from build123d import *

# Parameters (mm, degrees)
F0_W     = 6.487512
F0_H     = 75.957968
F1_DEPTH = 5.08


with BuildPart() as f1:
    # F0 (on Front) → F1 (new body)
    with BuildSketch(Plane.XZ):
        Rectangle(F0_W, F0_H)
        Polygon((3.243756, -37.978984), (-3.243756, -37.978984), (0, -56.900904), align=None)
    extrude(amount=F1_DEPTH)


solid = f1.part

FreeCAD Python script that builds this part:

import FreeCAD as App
import Part
import Sketcher

V = App.Vector
Q = App.Units.Quantity


def add_polygon(sketch, points):
    """Adds a closed chain of lines whose ends are joined by coincident constraints."""
    first, n = sketch.GeometryCount, len(points)
    for a, b in zip(points, points[1:] + points[:1]):
        sketch.addGeometry(Part.LineSegment(App.Vector(*a, 0), App.Vector(*b, 0)), False)
    for i in range(n):
        sketch.addConstraint(Sketcher.Constraint("Coincident", first + i, 2, first + (i + 1) % n, 1))

doc = App.newDocument("Part")
body = doc.addObject("PartDesign::Body", "Body")

sketch1 = body.newObject("Sketcher::SketchObject", "Sketch")
sketch1.AttachmentSupport = (doc.getObject("XZ_Plane"), [""])
sketch1.MapMode = "FlatFace"
add_polygon(sketch1, [(-3, 38), (-3, -38), (0, -57), (3, -38), (3, 38)])
sketch1.addConstraint([
    Sketcher.Constraint("Vertical", 0),
    Sketcher.Constraint("Vertical", 3),
    Sketcher.Constraint("Horizontal", 4),
    Sketcher.Constraint("Symmetric", 0, 2, 3, 2, -1, 1),
    Sketcher.Constraint("PointOnObject", 1, 2, -2),
    Sketcher.Constraint("Horizontal", 0, 2, 2, 2),
    Sketcher.Constraint("DistanceX", 4, 2, 4, 1, 6.487512),
    Sketcher.Constraint("DistanceY", 0, 2, 0, 1, 75.957968),
    Sketcher.Constraint("DistanceY", 1, 2, 0, 2, 18.92192),
])
pad1 = body.newObject("PartDesign::Pad", "Pad")
pad1.Profile = sketch1
pad1.Length = Q("0.2 in")

doc.recompute()
